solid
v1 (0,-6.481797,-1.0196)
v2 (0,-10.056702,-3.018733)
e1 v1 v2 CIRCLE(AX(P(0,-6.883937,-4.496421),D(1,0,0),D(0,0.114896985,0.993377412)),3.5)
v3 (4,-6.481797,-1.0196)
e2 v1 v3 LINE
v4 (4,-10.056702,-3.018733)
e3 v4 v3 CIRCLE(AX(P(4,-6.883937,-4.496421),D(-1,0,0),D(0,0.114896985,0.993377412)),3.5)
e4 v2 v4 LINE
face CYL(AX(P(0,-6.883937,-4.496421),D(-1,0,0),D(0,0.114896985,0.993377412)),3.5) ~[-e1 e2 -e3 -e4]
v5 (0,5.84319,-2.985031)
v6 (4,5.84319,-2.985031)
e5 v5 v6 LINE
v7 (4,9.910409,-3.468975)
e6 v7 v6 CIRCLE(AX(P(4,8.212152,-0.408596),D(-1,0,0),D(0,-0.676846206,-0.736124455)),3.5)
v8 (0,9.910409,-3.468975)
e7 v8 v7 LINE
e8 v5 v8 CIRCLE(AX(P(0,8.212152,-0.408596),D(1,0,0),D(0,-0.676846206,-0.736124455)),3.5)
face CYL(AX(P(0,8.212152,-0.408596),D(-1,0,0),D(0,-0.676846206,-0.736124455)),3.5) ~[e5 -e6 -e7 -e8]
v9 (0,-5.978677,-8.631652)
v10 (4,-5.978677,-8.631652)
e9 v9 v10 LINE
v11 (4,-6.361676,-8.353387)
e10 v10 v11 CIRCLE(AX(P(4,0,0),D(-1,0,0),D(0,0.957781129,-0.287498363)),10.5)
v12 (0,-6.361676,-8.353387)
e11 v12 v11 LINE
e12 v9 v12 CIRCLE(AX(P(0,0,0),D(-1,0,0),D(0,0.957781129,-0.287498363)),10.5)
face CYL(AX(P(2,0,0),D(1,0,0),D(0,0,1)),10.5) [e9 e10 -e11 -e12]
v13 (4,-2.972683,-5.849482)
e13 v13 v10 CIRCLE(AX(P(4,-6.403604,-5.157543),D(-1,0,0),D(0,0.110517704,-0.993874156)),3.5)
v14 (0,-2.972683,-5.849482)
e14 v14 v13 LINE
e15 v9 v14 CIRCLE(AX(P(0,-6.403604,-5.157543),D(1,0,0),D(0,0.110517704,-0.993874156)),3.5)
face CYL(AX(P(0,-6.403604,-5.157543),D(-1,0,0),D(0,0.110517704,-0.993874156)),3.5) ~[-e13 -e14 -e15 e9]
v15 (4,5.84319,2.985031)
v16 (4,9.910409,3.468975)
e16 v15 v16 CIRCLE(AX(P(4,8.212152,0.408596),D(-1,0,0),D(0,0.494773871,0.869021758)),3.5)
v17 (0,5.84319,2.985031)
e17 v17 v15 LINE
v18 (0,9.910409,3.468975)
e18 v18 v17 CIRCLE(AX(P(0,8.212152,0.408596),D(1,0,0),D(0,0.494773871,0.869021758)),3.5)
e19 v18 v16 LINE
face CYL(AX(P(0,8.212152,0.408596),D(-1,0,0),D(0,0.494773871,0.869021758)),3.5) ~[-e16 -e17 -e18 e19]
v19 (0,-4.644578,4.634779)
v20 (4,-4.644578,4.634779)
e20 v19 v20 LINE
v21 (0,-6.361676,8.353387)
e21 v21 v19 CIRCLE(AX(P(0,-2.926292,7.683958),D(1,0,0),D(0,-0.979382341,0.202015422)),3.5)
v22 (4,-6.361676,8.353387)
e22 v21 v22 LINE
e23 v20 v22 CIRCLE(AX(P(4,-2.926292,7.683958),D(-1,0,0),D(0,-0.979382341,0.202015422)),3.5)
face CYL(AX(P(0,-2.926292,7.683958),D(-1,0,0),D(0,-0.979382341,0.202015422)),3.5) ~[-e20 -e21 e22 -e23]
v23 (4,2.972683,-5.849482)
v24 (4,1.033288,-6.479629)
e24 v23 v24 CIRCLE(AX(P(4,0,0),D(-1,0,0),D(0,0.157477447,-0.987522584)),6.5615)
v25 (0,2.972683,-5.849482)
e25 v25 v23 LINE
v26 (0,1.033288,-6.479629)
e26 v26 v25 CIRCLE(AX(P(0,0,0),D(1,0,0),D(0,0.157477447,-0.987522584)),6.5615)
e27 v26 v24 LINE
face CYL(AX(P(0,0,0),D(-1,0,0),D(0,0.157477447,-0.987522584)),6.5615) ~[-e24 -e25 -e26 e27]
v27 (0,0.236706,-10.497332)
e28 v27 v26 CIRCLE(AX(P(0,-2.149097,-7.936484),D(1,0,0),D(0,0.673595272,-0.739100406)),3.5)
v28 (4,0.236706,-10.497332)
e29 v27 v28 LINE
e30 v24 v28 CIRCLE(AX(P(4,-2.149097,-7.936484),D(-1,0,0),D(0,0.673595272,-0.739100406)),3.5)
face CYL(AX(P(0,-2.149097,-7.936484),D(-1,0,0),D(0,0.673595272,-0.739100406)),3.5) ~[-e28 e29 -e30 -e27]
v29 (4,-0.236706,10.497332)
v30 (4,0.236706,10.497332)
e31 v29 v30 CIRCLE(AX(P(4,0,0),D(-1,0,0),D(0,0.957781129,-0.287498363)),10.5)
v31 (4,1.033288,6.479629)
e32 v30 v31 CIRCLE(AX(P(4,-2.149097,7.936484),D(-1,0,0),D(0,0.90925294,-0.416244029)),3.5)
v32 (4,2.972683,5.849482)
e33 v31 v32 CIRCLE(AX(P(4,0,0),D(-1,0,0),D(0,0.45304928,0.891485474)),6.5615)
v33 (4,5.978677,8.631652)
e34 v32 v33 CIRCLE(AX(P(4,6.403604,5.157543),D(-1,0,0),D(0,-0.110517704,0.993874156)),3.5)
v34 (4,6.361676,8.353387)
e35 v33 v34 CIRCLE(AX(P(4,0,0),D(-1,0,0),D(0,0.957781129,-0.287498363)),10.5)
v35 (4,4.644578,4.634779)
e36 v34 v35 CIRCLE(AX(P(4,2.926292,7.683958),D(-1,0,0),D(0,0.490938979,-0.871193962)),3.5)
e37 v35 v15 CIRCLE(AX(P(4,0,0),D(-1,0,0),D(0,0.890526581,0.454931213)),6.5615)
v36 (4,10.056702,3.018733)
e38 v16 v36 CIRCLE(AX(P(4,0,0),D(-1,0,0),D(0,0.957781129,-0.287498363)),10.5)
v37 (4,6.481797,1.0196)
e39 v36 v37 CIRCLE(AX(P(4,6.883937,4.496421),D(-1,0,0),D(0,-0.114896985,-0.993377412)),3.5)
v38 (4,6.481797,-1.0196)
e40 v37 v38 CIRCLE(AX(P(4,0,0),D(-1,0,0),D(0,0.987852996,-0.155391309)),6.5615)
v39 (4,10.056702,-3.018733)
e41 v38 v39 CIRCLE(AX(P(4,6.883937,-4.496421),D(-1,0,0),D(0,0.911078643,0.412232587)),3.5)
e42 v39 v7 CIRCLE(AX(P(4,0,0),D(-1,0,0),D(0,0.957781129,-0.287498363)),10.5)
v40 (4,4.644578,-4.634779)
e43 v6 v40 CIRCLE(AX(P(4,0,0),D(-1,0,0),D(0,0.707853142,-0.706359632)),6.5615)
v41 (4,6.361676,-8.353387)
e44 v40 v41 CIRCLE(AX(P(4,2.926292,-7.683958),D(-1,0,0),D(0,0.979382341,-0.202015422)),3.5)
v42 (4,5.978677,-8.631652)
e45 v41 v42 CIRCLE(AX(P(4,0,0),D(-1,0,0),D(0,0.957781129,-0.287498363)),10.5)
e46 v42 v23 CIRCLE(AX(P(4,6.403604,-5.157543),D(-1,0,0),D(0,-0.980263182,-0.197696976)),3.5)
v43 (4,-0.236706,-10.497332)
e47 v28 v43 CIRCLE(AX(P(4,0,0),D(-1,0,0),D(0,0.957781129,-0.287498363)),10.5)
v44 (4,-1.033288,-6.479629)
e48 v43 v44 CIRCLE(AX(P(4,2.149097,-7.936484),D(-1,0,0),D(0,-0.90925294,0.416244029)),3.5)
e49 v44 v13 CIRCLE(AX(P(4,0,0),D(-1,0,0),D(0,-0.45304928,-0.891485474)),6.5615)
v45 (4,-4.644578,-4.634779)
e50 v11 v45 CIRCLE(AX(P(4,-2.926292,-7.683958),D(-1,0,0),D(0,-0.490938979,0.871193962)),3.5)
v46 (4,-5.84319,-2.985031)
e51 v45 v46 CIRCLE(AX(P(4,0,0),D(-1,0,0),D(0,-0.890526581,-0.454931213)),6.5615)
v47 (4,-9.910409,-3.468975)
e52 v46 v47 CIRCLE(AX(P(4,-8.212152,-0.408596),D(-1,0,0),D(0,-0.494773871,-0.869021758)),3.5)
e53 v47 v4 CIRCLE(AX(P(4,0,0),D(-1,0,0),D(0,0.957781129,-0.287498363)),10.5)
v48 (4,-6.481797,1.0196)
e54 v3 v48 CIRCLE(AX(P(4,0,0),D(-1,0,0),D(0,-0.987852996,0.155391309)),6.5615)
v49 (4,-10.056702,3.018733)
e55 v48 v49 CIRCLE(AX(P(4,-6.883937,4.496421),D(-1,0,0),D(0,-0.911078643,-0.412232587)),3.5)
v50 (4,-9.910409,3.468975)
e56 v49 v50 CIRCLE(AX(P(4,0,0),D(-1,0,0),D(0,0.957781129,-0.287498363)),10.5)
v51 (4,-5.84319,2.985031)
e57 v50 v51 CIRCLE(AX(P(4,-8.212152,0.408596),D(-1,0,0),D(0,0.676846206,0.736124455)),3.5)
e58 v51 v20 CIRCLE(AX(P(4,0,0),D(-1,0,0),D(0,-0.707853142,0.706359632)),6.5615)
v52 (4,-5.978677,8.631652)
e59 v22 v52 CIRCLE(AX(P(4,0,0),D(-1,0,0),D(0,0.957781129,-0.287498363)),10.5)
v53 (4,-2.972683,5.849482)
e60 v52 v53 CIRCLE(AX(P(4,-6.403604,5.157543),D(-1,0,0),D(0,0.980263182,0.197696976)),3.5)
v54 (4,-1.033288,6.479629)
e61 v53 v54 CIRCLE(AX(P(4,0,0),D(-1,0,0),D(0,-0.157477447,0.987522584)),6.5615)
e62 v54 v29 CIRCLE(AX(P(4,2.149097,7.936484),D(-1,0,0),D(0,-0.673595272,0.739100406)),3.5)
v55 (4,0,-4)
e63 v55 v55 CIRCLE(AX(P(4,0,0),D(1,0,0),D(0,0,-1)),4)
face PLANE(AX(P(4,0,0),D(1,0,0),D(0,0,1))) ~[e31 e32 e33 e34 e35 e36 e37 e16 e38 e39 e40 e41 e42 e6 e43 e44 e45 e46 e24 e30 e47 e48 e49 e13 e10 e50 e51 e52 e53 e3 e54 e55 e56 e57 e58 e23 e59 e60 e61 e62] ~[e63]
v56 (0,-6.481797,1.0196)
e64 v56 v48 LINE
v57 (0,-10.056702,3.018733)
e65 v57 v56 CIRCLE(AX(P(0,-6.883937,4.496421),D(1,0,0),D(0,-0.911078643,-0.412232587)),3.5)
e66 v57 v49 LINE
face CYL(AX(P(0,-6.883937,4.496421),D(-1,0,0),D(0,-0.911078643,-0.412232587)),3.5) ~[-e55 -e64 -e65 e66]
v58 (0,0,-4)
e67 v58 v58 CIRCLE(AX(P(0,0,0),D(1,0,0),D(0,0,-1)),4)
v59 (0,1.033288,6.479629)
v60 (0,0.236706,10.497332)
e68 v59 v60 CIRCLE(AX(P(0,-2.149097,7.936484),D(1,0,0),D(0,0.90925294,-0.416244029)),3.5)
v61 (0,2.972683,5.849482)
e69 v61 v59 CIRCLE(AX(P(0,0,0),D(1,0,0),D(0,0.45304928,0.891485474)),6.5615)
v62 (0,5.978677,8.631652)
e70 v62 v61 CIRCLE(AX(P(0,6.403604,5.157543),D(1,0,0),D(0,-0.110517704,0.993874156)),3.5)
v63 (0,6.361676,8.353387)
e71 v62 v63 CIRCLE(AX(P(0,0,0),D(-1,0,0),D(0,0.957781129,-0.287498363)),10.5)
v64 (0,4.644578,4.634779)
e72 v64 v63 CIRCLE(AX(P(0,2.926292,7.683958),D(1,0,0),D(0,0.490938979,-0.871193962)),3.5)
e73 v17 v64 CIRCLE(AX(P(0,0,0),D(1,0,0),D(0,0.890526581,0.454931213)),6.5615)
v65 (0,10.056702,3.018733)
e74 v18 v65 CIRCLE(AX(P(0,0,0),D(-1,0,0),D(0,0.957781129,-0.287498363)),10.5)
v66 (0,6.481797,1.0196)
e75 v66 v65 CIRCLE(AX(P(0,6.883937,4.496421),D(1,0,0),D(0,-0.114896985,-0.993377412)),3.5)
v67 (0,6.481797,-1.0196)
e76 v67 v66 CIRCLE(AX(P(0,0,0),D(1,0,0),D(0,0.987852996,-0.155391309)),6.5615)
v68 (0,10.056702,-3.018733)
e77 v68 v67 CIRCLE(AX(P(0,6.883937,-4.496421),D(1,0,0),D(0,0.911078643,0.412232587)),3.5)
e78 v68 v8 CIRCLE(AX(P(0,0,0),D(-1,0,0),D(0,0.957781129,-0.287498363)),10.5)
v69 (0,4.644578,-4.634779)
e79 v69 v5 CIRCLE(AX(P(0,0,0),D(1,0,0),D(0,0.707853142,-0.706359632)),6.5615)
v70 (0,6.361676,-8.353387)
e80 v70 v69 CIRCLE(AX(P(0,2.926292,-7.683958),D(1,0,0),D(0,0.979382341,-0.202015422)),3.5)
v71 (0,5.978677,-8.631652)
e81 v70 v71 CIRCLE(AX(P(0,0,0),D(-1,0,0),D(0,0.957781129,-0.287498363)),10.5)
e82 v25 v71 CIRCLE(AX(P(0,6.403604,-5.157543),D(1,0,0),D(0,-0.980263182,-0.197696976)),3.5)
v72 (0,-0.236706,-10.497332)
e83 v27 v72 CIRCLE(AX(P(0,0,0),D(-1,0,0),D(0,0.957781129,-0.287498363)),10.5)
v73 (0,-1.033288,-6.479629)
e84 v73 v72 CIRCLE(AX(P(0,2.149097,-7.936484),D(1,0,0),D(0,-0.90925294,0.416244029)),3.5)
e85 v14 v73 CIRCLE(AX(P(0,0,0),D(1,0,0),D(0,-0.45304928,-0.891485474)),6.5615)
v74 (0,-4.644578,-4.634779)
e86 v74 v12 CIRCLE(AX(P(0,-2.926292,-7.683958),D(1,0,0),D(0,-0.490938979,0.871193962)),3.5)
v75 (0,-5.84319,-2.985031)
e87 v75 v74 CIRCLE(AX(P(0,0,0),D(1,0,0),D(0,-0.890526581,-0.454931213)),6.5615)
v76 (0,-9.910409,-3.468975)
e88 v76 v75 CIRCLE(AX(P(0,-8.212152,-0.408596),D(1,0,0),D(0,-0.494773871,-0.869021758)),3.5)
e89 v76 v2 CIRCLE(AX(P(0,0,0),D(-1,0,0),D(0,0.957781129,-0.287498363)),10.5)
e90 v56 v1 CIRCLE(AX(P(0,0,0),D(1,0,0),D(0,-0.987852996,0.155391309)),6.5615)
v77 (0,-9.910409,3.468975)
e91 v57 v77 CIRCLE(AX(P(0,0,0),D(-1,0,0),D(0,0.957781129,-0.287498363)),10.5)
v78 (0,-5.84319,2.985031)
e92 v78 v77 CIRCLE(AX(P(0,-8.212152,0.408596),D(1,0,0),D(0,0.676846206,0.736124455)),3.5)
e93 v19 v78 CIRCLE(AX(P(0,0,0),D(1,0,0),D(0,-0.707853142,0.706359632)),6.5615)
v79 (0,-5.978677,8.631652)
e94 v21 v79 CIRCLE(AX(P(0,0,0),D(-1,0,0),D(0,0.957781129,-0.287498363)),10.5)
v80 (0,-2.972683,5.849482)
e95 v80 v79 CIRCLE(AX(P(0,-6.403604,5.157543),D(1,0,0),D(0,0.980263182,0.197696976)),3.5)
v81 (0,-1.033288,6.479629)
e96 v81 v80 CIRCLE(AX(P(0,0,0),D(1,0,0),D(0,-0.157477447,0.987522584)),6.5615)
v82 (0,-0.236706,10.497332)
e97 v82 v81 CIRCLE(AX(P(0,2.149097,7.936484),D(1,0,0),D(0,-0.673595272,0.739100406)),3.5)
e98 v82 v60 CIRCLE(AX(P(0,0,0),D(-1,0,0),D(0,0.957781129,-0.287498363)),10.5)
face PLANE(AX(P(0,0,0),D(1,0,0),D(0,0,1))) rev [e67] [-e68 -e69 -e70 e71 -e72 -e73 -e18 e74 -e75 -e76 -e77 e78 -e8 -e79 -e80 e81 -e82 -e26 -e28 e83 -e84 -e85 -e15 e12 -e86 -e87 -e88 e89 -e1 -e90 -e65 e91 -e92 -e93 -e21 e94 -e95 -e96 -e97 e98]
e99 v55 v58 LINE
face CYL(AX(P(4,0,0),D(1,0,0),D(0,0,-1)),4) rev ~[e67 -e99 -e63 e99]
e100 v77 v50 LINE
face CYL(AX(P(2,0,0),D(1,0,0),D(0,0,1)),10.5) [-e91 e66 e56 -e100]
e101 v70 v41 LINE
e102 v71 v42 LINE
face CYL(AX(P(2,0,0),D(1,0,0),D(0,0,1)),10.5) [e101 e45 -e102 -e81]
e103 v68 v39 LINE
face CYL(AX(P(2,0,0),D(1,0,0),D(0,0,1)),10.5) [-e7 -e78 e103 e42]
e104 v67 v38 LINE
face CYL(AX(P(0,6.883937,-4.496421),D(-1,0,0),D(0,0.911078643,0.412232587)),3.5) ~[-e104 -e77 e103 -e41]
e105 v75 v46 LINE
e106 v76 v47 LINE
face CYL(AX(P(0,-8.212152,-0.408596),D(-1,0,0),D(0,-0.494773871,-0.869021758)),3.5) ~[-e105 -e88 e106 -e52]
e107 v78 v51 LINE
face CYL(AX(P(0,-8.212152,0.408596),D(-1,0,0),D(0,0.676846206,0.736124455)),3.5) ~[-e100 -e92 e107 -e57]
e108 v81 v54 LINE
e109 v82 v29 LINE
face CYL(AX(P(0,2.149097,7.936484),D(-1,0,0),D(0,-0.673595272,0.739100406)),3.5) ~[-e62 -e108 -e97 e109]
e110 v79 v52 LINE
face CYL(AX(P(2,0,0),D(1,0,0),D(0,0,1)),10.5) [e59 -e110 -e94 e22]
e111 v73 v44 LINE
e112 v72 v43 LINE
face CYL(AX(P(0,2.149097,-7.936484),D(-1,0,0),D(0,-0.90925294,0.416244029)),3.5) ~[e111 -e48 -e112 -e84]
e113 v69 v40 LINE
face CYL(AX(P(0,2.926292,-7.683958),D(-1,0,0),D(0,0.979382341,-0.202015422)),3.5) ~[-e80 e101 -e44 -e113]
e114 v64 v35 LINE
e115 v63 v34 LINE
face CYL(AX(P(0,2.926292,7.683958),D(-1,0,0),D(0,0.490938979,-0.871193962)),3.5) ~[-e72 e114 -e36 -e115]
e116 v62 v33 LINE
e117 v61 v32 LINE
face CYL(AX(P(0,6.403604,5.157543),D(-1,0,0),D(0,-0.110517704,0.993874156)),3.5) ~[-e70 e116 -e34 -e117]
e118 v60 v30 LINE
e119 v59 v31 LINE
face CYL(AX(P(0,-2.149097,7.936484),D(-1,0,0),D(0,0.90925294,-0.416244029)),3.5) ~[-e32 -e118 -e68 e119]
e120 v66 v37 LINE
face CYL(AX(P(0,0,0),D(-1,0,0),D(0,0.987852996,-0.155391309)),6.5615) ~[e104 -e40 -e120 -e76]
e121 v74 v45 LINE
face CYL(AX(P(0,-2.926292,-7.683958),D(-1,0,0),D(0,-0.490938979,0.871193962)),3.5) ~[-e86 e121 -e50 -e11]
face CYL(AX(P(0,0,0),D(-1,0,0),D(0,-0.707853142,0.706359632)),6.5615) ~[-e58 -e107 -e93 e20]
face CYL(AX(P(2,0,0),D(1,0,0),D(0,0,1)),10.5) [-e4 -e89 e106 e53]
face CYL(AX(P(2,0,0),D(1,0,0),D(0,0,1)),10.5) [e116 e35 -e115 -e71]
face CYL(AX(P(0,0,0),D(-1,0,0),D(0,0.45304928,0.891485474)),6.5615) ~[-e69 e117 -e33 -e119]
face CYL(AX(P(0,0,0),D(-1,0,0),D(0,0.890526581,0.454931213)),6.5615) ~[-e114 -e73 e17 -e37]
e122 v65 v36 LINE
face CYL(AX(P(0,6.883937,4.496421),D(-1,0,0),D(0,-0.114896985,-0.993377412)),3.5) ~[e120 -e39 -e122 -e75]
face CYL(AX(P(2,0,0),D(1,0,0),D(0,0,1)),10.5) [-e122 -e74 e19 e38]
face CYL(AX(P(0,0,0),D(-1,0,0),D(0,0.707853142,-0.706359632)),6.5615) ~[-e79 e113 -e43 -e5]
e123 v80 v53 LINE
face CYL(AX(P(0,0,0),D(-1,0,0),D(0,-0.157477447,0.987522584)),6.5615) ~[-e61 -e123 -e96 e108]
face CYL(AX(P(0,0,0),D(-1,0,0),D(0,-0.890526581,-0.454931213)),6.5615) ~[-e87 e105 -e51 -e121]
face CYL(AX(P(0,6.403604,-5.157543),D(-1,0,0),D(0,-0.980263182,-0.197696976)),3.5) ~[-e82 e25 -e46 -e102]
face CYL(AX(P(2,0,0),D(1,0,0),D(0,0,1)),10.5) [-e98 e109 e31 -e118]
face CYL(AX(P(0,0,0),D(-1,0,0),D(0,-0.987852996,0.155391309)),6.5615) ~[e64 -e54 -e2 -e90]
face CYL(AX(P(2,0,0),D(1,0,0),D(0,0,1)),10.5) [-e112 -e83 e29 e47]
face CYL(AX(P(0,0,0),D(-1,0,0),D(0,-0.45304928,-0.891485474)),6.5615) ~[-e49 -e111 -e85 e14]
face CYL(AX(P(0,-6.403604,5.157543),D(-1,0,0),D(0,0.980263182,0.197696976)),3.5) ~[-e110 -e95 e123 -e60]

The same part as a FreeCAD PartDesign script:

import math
import FreeCAD as App
import Part
import Sketcher

V = App.Vector


def add_polygon(sketch, points):
    """Adds a closed chain of lines whose ends are joined by coincident constraints."""
    first, n = sketch.GeometryCount, len(points)
    for a, b in zip(points, points[1:] + points[:1]):
        sketch.addGeometry(Part.LineSegment(App.Vector(*a, 0), App.Vector(*b, 0)), False)
    for i in range(n):
        sketch.addConstraint(Sketcher.Constraint("Coincident", first + i, 2, first + (i + 1) % n, 1))

doc = App.newDocument("Part")
body = doc.addObject("PartDesign::Body", "Body")

# Sketch on XZ plane
sketch1 = body.newObject("Sketcher::SketchObject", "Sketch")
sketch1.AttachmentSupport = (doc.getObject("XZ_Plane"), [""])
sketch1.MapMode = "FlatFace"
add_polygon(sketch1, [(0, -10.5), (0, 0), (4, 0), (4, -10.5)])  # lines 0-3
sketch1.addConstraint(Sketcher.Constraint("Vertical", 0))
sketch1.addConstraint(Sketcher.Constraint("Horizontal", 1))
sketch1.addConstraint(Sketcher.Constraint("Vertical", 2))
sketch1.addConstraint(Sketcher.Constraint("Horizontal", 3))
sketch1.addConstraint(Sketcher.Constraint("Coincident", 0, 2, -1, 1))
sketch1.addConstraint(Sketcher.Constraint("DistanceX", 1, 1, 1, 2, 4.0))
sketch1.addConstraint(Sketcher.Constraint("DistanceY", 0, 1, 0, 2, 10.5))
revolution = body.newObject("PartDesign::Revolution", "Revolution")
revolution.Profile = sketch1
revolution.ReferenceAxis = (sketch1, ["H_Axis"])
revolution.Angle = 360

# Sketch on YZ plane
sketch2 = body.newObject("Sketcher::SketchObject", "Sketch001")
sketch2.AttachmentSupport = (doc.getObject("YZ_Plane"), [""])
sketch2.MapMode = "FlatFace"
sketch2.addGeometry(Part.ArcOfCircle(Part.Circle(V(0, 0, 0), V(0, 0, 1), 6.6), math.radians(-8.94), math.radians(8.94)), False)
sketch2.addGeometry(Part.ArcOfCircle(Part.Circle(V(6.9, -4.5, 0), V(0, 0, 1), 3.5), math.radians(24), math.radians(97)), False)
sketch2.addGeometry(Part.ArcOfCircle(Part.Circle(V(0, 0, 0), V(0, 0, 1), 10.5), math.radians(-17), math.radians(17)), False)
sketch2.addGeometry(Part.ArcOfCircle(Part.Circle(V(6.9, 4.5, 0), V(0, 0, 1), 3.5), math.radians(-97), math.radians(-24)), False)
sketch2.addConstraint(Sketcher.Constraint("Coincident", 0, 1, 1, 2))
sketch2.addConstraint(Sketcher.Constraint("Coincident", 1, 1, 2, 1))
sketch2.addConstraint(Sketcher.Constraint("Coincident", 2, 2, 3, 2))
sketch2.addConstraint(Sketcher.Constraint("Coincident", 3, 1, 0, 2))
sketch2.addConstraint(Sketcher.Constraint("Coincident", 0, 3, -1, 1))
sketch2.addConstraint(Sketcher.Constraint("Coincident", 2, 3, -1, 1))
sketch2.addConstraint(Sketcher.Constraint("Equal", 1, 3))
sketch2.addConstraint(Sketcher.Constraint("Symmetric", 1, 3, 3, 3, -1))
sketch2.addConstraint(Sketcher.Constraint("Radius", 1, 3.5))
sketch2.addConstraint(Sketcher.Constraint("Radius", 0, 6.5615))
sketch2.addConstraint(Sketcher.Constraint("Radius", 2, 10.5254))
sketch2.addConstraint(Sketcher.Constraint("DistanceY", 0, 1, -1, 1, 1.0196))
sketch2.addConstraint(Sketcher.Constraint("DistanceY", 1, 3, -1, 1, 4.496421))
pocket1 = body.newObject("PartDesign::Pocket", "Pocket")
pocket1.Profile = sketch2
pocket1.Type = "ThroughAll"
pocket1.Reversed = True
doc.recompute()

polarpattern = body.newObject("PartDesign::PolarPattern", "PolarPattern")
polarpattern.Originals = [pocket1]
polarpattern.Axis = (doc.getObject("X_Axis"), [""])
polarpattern.Angle = 360
polarpattern.Occurrences = 10
body.Tip = polarpattern

# Sketch on YZ plane
sketch3 = body.newObject("Sketcher::SketchObject", "Sketch002")
sketch3.AttachmentSupport = (doc.getObject("YZ_Plane"), [""])
sketch3.MapMode = "FlatFace"
sketch3.addGeometry(Part.Circle(V(0, 0, 0), V(0, 0, 1), 0.5), False)
sketch3.addConstraint(Sketcher.Constraint("Coincident", 0, 3, -1, 1))
sketch3.addConstraint(Sketcher.Constraint("Diameter", 0, 1.0))
pocket2 = body.newObject("PartDesign::Pocket", "Pocket001")
pocket2.Profile = sketch3
pocket2.Length = 100.000102
pocket2.Midplane = True

# Sketch on YZ plane
sketch4 = body.newObject("Sketcher::SketchObject", "Sketch003")
sketch4.AttachmentSupport = (doc.getObject("YZ_Plane"), [""])
sketch4.MapMode = "FlatFace"
sketch4.AttachmentOffset = App.Placement(V(0, 0, 4), App.Rotation())
sketch4.addGeometry(Part.Circle(V(0, 0, 0), V(0, 0, 1), 4), False)
sketch4.addConstraint(Sketcher.Constraint("Coincident", 0, 3, -1, 1))
sketch4.addConstraint(Sketcher.Constraint("Diameter", 0, 8.0))
pocket3 = body.newObject("PartDesign::Pocket", "Pocket002")
pocket3.Profile = sketch4
pocket3.Length = 10

doc.recompute()
